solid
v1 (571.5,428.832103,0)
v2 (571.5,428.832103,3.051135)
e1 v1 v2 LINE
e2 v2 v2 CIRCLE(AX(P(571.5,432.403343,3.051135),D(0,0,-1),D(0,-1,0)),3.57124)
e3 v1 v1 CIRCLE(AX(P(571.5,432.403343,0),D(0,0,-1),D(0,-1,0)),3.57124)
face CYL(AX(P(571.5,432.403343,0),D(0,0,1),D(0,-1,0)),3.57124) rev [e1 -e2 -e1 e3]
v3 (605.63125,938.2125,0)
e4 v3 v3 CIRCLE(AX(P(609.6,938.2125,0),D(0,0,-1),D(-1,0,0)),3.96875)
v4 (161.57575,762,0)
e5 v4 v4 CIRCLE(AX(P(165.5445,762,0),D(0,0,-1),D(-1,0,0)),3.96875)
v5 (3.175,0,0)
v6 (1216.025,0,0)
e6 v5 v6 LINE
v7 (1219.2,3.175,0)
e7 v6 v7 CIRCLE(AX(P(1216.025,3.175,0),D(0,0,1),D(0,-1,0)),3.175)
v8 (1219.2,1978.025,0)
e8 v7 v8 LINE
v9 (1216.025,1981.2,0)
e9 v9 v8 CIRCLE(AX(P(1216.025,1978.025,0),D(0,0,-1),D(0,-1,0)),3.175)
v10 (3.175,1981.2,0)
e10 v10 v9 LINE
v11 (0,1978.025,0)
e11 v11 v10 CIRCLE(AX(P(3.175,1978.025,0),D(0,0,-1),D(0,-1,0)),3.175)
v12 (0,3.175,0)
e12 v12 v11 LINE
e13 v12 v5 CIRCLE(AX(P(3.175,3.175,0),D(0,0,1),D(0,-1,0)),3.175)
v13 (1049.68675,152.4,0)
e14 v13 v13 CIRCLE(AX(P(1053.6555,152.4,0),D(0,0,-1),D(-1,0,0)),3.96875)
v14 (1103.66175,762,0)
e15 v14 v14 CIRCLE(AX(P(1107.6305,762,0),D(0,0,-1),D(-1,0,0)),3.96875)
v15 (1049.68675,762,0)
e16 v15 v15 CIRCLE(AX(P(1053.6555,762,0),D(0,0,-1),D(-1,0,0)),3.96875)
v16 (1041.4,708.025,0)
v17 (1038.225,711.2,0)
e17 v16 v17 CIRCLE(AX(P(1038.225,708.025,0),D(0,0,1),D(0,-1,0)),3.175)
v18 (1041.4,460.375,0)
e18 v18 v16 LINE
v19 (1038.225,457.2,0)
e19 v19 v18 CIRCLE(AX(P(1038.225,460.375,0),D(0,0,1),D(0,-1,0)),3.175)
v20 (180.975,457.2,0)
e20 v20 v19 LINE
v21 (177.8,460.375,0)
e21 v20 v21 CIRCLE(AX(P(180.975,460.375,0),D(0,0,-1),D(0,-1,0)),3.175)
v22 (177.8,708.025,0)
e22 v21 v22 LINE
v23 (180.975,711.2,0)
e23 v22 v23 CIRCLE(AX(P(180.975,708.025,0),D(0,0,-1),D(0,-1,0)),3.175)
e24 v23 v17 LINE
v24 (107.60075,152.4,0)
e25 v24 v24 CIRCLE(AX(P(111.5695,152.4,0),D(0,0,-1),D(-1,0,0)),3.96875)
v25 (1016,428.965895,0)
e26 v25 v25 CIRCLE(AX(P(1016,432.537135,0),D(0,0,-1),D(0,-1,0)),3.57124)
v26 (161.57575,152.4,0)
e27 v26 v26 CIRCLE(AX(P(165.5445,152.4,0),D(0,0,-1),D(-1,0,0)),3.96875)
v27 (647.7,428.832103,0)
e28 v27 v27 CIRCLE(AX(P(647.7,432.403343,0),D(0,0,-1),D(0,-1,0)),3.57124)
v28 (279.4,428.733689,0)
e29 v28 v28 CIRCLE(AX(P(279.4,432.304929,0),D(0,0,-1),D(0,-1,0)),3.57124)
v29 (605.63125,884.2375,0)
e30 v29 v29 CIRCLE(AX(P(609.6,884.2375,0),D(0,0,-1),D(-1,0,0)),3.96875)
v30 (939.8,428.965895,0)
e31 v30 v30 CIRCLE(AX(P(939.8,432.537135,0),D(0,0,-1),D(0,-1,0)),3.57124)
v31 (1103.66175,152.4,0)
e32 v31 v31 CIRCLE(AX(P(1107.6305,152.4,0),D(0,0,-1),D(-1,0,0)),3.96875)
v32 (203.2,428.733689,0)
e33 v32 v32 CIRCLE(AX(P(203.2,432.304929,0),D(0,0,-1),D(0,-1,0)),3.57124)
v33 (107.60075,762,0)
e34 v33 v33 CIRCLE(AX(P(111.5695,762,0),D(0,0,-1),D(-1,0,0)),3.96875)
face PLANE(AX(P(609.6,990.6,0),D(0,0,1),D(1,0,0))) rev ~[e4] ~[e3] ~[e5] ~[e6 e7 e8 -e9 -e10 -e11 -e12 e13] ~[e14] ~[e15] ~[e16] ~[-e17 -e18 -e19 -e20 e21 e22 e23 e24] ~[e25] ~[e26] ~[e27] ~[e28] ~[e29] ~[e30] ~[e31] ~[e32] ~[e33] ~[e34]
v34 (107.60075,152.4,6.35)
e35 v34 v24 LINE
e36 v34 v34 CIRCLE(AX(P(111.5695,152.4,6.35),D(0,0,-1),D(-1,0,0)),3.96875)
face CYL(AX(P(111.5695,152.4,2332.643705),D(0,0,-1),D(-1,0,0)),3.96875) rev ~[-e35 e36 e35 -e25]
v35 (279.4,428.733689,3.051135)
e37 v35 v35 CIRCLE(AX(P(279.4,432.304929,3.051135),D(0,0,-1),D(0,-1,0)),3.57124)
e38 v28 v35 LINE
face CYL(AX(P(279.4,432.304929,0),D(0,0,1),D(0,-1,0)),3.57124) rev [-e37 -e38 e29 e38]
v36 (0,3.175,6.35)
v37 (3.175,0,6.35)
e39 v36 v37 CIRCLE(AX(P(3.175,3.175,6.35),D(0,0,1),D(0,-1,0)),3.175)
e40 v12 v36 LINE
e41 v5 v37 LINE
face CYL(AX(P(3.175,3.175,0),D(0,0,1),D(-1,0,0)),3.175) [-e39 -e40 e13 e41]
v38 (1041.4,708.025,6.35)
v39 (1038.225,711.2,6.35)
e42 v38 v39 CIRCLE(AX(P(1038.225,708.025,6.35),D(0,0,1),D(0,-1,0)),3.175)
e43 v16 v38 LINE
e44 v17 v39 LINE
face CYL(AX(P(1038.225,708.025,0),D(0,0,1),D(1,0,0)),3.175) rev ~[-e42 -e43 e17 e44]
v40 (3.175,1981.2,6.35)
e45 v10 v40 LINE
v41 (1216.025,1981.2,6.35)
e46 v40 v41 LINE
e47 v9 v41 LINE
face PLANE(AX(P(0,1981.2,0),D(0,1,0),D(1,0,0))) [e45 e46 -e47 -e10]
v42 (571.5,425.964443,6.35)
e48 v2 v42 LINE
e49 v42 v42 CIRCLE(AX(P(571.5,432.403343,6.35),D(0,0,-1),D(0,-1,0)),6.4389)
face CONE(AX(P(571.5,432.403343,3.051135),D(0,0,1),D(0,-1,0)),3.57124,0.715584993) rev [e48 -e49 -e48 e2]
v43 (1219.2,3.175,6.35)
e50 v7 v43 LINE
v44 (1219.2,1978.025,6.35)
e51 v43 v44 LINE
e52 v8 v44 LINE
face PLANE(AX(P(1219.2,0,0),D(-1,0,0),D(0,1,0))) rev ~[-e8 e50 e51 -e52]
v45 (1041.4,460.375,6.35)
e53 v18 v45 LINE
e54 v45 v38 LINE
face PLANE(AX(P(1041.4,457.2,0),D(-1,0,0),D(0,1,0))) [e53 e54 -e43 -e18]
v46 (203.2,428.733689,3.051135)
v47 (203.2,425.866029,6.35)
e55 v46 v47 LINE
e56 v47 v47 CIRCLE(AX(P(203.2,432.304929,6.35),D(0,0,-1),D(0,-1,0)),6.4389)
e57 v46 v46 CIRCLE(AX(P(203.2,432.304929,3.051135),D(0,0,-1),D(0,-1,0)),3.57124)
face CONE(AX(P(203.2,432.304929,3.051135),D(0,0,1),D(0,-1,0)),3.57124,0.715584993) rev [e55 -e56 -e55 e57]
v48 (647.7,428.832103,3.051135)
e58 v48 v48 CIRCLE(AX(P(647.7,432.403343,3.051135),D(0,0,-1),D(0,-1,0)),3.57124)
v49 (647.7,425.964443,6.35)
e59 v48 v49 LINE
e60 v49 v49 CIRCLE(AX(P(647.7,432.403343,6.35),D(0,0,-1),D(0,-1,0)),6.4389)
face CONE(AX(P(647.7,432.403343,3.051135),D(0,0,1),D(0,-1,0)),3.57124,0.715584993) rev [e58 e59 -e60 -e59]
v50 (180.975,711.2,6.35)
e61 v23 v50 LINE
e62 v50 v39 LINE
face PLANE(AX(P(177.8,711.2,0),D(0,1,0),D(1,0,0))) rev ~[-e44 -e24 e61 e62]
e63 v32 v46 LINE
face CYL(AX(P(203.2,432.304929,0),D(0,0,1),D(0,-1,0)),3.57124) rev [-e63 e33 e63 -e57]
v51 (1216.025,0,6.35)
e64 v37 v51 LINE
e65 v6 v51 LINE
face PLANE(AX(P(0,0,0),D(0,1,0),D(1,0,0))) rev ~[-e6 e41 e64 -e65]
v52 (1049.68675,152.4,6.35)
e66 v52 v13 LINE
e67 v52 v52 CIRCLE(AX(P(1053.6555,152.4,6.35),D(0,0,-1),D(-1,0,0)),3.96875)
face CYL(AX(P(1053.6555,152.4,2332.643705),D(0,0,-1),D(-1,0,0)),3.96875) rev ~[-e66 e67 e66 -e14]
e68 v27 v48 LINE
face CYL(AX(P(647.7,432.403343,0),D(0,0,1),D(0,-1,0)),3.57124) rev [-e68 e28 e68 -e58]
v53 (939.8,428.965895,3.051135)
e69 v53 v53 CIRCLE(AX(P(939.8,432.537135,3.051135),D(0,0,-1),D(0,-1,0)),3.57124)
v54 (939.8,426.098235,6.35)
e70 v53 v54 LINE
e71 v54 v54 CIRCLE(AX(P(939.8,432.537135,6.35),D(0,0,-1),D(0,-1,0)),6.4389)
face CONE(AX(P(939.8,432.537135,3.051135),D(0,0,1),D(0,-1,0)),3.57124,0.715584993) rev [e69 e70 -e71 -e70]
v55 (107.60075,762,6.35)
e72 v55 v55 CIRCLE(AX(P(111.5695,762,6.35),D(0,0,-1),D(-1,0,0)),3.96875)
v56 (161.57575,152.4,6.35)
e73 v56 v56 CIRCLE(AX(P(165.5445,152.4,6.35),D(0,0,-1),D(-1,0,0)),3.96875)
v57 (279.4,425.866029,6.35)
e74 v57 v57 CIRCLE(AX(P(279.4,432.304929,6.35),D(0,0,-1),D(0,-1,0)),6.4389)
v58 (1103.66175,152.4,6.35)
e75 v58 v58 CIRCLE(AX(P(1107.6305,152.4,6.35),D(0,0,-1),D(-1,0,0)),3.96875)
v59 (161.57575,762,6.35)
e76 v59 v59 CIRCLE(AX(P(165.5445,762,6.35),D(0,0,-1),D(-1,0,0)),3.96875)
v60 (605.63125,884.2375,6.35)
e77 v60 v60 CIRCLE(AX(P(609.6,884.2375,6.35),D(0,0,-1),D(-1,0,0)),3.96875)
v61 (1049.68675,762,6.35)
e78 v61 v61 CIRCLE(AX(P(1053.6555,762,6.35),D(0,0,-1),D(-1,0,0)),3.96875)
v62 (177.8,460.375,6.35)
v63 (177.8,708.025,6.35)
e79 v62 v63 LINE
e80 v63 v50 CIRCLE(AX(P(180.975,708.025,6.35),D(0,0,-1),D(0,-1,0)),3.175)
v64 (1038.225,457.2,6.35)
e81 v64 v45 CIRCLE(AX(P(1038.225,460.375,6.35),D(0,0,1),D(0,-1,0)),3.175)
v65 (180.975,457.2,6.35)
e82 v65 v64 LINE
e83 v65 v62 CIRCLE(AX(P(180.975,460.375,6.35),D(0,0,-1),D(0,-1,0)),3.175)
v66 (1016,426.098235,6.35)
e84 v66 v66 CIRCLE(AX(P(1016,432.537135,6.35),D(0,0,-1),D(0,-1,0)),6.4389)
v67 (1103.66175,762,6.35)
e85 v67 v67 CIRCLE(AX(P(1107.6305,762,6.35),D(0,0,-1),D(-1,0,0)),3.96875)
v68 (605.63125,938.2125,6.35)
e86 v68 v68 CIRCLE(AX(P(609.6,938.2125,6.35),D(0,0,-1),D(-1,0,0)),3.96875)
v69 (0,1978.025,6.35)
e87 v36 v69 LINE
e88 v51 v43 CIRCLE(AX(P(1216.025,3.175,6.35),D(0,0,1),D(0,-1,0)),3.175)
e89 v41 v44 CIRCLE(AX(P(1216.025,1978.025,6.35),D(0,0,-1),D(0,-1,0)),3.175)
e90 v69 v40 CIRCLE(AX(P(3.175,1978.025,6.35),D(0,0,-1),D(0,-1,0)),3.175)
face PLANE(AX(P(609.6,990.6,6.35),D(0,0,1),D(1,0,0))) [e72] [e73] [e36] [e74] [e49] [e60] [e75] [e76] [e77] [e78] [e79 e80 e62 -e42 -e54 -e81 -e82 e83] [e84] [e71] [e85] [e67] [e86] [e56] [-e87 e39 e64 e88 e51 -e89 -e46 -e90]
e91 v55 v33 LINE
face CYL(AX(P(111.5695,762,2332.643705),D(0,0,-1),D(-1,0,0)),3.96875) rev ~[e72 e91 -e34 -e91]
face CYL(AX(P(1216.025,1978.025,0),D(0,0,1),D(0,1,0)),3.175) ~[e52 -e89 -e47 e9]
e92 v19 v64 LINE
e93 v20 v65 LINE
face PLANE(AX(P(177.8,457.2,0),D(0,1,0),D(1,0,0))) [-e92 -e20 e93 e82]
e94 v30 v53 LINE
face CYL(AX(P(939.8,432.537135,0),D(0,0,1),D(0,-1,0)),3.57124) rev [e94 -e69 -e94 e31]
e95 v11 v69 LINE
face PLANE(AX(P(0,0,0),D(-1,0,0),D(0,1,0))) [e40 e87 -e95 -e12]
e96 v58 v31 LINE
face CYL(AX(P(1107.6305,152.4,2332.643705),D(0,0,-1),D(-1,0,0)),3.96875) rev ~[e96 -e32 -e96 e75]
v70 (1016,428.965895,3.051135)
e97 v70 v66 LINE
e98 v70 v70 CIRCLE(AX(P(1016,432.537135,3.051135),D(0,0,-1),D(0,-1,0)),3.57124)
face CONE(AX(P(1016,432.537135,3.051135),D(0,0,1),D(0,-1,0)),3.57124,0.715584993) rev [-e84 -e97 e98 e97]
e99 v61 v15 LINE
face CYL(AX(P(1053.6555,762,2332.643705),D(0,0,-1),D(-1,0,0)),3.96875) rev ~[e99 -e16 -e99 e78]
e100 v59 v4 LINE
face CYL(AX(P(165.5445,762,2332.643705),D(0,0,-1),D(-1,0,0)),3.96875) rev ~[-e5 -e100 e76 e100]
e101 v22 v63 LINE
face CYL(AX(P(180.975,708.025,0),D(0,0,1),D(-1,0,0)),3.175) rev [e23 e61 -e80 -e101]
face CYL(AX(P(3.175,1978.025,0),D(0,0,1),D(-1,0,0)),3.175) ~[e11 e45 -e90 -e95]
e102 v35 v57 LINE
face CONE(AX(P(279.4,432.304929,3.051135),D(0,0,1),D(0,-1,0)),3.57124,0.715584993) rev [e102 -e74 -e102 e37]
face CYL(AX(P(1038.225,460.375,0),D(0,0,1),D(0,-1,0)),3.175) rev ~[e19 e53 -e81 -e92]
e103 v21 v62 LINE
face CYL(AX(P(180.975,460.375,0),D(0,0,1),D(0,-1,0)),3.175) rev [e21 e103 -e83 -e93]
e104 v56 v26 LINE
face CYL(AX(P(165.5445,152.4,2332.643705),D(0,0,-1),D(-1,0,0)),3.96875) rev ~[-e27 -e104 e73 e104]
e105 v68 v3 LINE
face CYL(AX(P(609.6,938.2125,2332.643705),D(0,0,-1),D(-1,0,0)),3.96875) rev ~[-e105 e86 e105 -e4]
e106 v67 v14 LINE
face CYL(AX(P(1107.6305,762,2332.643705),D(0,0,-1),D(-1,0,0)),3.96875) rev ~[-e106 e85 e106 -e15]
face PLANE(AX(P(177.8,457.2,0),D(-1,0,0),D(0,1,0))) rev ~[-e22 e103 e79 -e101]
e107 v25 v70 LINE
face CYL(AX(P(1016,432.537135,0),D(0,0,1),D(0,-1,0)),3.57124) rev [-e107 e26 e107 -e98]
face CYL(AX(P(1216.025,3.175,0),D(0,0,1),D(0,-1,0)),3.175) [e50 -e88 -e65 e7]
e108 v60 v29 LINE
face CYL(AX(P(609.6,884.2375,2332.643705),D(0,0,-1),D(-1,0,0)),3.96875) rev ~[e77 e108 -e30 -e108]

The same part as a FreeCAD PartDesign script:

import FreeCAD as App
import Part
import Sketcher
Q = App.Units.Quantity


def edges_at(feature, points):
    """Names of the edges that pass closest to the given points."""
    edges = feature.Shape.Edges
    near = lambda p: min(range(len(edges)), key=lambda i: edges[i].distToShape(Part.Vertex(*p))[0])
    return sorted({f"Edge{near(p) + 1}" for p in points})


def add_polygon(sketch, points):
    """Adds a closed chain of lines whose ends are joined by coincident constraints."""
    first, n = sketch.GeometryCount, len(points)
    for a, b in zip(points, points[1:] + points[:1]):
        sketch.addGeometry(Part.LineSegment(App.Vector(*a, 0), App.Vector(*b, 0)), False)
    for i in range(n):
        sketch.addConstraint(Sketcher.Constraint("Coincident", first + i, 2, first + (i + 1) % n, 1))

doc = App.newDocument("Part")
params = doc.addObject("Spreadsheet::Sheet", "Params")
for row, (alias, value) in enumerate([
    ("sketch1_width", "48 in"),
    ("sketch1_width2", "34 in"),
    ("sketch1_height", "78 in"),
    ("sketch1_height2", "10 in"),
    ("pad1_length", "0.25 in"),
    ("sketch2_height", "0.25 in"),
    ("groove_angle", "360 deg"),
    ("linearpattern_pitch", "3 in"),
    ("linearpattern2_pitch", "736.600036 mm"),
    ("linearpattern3_pitch", "812.800033 mm"),
    ("linearpattern4_pitch", "368.300013 mm"),
    ("linearpattern5_pitch", "444.500011 mm"),
    ("fillet_radius", "0.125 in"),
    ("sketch3_diameter", "0.3125 in"),
    ("hole_diameter", "0.3125 in"),
], start=1):
    params.set(f"A{row}", alias)
    params.set(f"B{row}", "=" + value)
    params.setAlias(f"B{row}", alias)

body = doc.addObject("PartDesign::Body", "Body")

# Sketch on XY plane
sketch1 = body.newObject("Sketcher::SketchObject", "Sketch")
sketch1.AttachmentSupport = (doc.getObject("XY_Plane"), [""])
sketch1.MapMode = "FlatFace"
add_polygon(sketch1, [(0, 1981.2), (0, 0), (1219.2, 0), (1219.2, 1981.2)])  # lines 0-3
add_polygon(sketch1, [(1041.4, 457.2), (177.8, 457.2), (177.8, 711.2), (1041.4, 711.2)])  # lines 4-7
sketch1.addConstraint([
    Sketcher.Constraint("Vertical", 0),
    Sketcher.Constraint("Horizontal", 1),
    Sketcher.Constraint("Vertical", 2),
    Sketcher.Constraint("Horizontal", 3),
    Sketcher.Constraint("Horizontal", 4),
    Sketcher.Constraint("Vertical", 5),
    Sketcher.Constraint("Horizontal", 6),
    Sketcher.Constraint("Vertical", 7),
    Sketcher.Constraint("Coincident", 0, 2, -1, 1),
    Sketcher.Constraint("DistanceX", 1, 1, 1, 2, Q("48 in")),
    Sketcher.Constraint("DistanceX", 4, 2, 4, 1, Q("34 in")),
    Sketcher.Constraint("DistanceY", 0, 2, 0, 1, Q("78 in")),
    Sketcher.Constraint("DistanceY", 5, 1, 5, 2, Q("10 in")),
    Sketcher.Constraint("DistanceX", -1, 1, 4, 2, Q("7 in")),
    Sketcher.Constraint("DistanceY", -1, 1, 4, 2, Q("18 in")),
])
sketch1.setExpression("Constraints[17]", "Params.sketch1_width")
sketch1.setExpression("Constraints[18]", "Params.sketch1_width2")
sketch1.setExpression("Constraints[19]", "Params.sketch1_height")
sketch1.setExpression("Constraints[20]", "Params.sketch1_height2")
pad1 = body.newObject("PartDesign::Pad", "Pad")
pad1.Profile = sketch1
pad1.setExpression("Length", "Params.pad1_length")

# Sketch on YZ plane
sketch2 = body.newObject("Sketcher::SketchObject", "Sketch001")
sketch2.AttachmentSupport = (doc.getObject("YZ_Plane"), [""])
sketch2.MapMode = "FlatFace"
sketch2.AttachmentOffset = App.Placement(App.Vector(0, 0, 8 * 25.4), App.Rotation())
add_polygon(sketch2, [(432.304929, 0), (432.304929, 6.35), (425.866029, 6.35), (428.733689, 3.051135), (428.733689, 0)])  # lines 0-4
sketch2.addGeometry(Part.LineSegment(App.Vector(432.304929, 6.35, 0), App.Vector(432.304929, 0, 0)), True)  # axis
sketch2.addConstraint([
    Sketcher.Constraint("Vertical", 0),
    Sketcher.Constraint("Horizontal", 1),
    Sketcher.Constraint("Vertical", 3),
    Sketcher.Constraint("Horizontal", 4),
    Sketcher.Constraint("Vertical", 5),
    Sketcher.Constraint("Coincident", 5, 1, 0, 2),
    Sketcher.Constraint("PointOnObject", 3, 2, -1),
    Sketcher.Constraint("PointOnObject", 5, 2, -1),
    Sketcher.Constraint("Angle", 2, Q("-49 deg")),
    Sketcher.Constraint("DistanceY", 0, 1, 0, 2, Q("0.25 in")),
    Sketcher.Constraint("DistanceX", 1, 2, 1, 1, Q("0.2535 in")),
    Sketcher.Constraint("DistanceX", 4, 1, 4, 2, Q("0.1406 in")),
    Sketcher.Constraint("DistanceX", -1, 1, 0, 2, 432.304929),
])
sketch2.setExpression("Constraints[14]", "Params.sketch2_height")
groove = body.newObject("PartDesign::Groove", "Groove")
groove.Profile = sketch2
groove.ReferenceAxis = (sketch2, ["Axis0"])
groove.setExpression("Angle", "Params.groove_angle")
doc.recompute()

linearpattern = body.newObject("PartDesign::LinearPattern", "LinearPattern")
linearpattern.Originals = [groove]
linearpattern.Direction = (doc.getObject("X_Axis"), [""])
linearpattern.Mode = "offset"
linearpattern.setExpression("Offset", "Params.linearpattern_pitch")
linearpattern.Occurrences = 2
body.Tip = linearpattern
doc.recompute()

datumline = body.newObject("PartDesign::Line", "DatumLine")
datumline.Placement = App.Placement(App.Vector(0, 0, 0), App.Rotation(App.Vector(0, 0, 1), App.Vector(0.99999995, 0.000315241, 0)))
linearpattern2 = body.newObject("PartDesign::LinearPattern", "LinearPattern001")
linearpattern2.Originals = [groove]
linearpattern2.Direction = (datumline, [""])
linearpattern2.Mode = "offset"
linearpattern2.setExpression("Offset", "Params.linearpattern2_pitch")
linearpattern2.Occurrences = 2
body.Tip = linearpattern2
doc.recompute()

datumline2 = body.newObject("PartDesign::Line", "DatumLine001")
datumline2.Placement = App.Placement(App.Vector(0, 0, 0), App.Rotation(App.Vector(0, 0, 1), App.Vector(0.999999959, 0.000285687, 0)))
linearpattern3 = body.newObject("PartDesign::LinearPattern", "LinearPattern002")
linearpattern3.Originals = [groove]
linearpattern3.Direction = (datumline2, [""])
linearpattern3.Mode = "offset"
linearpattern3.setExpression("Offset", "Params.linearpattern3_pitch")
linearpattern3.Occurrences = 2
body.Tip = linearpattern3
doc.recompute()

datumline3 = body.newObject("PartDesign::Line", "DatumLine002")
datumline3.Placement = App.Placement(App.Vector(0, 0, 0), App.Rotation(App.Vector(0, 0, 1), App.Vector(0.999999964, 0.000267211, 0)))
linearpattern4 = body.newObject("PartDesign::LinearPattern", "LinearPattern003")
linearpattern4.Originals = [groove]
linearpattern4.Direction = (datumline3, [""])
linearpattern4.Mode = "offset"
linearpattern4.setExpression("Offset", "Params.linearpattern4_pitch")
linearpattern4.Occurrences = 2
body.Tip = linearpattern4
doc.recompute()

datumline4 = body.newObject("PartDesign::Line", "DatumLine003")
datumline4.Placement = App.Placement(App.Vector(0, 0, 0), App.Rotation(App.Vector(0, 0, 1), App.Vector(0.999999975, 0.000221404, 0)))
linearpattern5 = body.newObject("PartDesign::LinearPattern", "LinearPattern004")
linearpattern5.Originals = [groove]
linearpattern5.Direction = (datumline4, [""])
linearpattern5.Mode = "offset"
linearpattern5.setExpression("Offset", "Params.linearpattern5_pitch")
linearpattern5.Occurrences = 2
body.Tip = linearpattern5
doc.recompute()

fillet = body.newObject("PartDesign::Fillet", "Fillet")
fillet.Base = (linearpattern5, edges_at(linearpattern5, [
    (177.8, 711.2, 3.175),
    (177.8, 457.2, 3.175),
    (1041.4, 457.2, 3.175),
    (1041.4, 711.2, 3.175),
    (0, 1981.2, 3.175),
    (1219.2, 1981.2, 3.175),
    (1219.2, 0, 3.175),
    (0, 0, 3.175),
]))
fillet.setExpression("Radius", "Params.fillet_radius")

# Sketch on XY plane
sketch3 = body.newObject("Sketcher::SketchObject", "Sketch002")
sketch3.AttachmentSupport = (doc.getObject("XY_Plane"), [""])
sketch3.MapMode = "FlatFace"
sketch3.AttachmentOffset = App.Placement(App.Vector(0, 0, 0.25 * 25.4), App.Rotation())
sketch3.addGeometry([
    Part.Circle(App.Vector(609.6, 938.2125, 0), App.Vector(0, 0, 1), 3.96875),  # 0
    Part.Circle(App.Vector(111.5695, 762, 0), App.Vector(0, 0, 1), 3.96875),  # 1
    Part.Circle(App.Vector(111.5695, 152.4, 0), App.Vector(0, 0, 1), 3.96875),  # 2
    Part.Circle(App.Vector(165.5445, 152.4, 0), App.Vector(0, 0, 1), 3.96875),  # 3
    Part.Circle(App.Vector(165.5445, 762, 0), App.Vector(0, 0, 1), 3.96875),  # 4
    Part.Circle(App.Vector(1053.6555, 152.4, 0), App.Vector(0, 0, 1), 3.96875),  # 5
    Part.Circle(App.Vector(1107.6305, 152.4, 0), App.Vector(0, 0, 1), 3.96875),  # 6
    Part.Circle(App.Vector(1107.6305, 762, 0), App.Vector(0, 0, 1), 3.96875),  # 7
    Part.Circle(App.Vector(1053.6555, 762, 0), App.Vector(0, 0, 1), 3.96875),  # 8
    Part.Circle(App.Vector(609.6, 884.2375, 0), App.Vector(0, 0, 1), 3.96875),  # 9
], False)
sketch3.addConstraint([
    Sketcher.Constraint("Equal", 0, 1),
    Sketcher.Constraint("Equal", 1, 2),
    Sketcher.Constraint("Equal", 2, 3),
    Sketcher.Constraint("Equal", 3, 4),
    Sketcher.Constraint("Equal", 4, 5),
    Sketcher.Constraint("Equal", 5, 6),
    Sketcher.Constraint("Equal", 6, 7),
    Sketcher.Constraint("Equal", 7, 8),
    Sketcher.Constraint("Equal", 8, 9),
    Sketcher.Constraint("Horizontal", 2, 3, 3, 3),
    Sketcher.Constraint("Horizontal", 1, 3, 4, 3),
    Sketcher.Constraint("Horizontal", 3, 3, 5, 3),
    Sketcher.Constraint("Horizontal", 5, 3, 6, 3),
    Sketcher.Constraint("Horizontal", 4, 3, 7, 3),
    Sketcher.Constraint("Horizontal", 7, 3, 8, 3),
    Sketcher.Constraint("Vertical", 1, 3, 2, 3),
    Sketcher.Constraint("Vertical", 3, 3, 4, 3),
    Sketcher.Constraint("Vertical", 6, 3, 7, 3),
    Sketcher.Constraint("Vertical", 5, 3, 8, 3),
    Sketcher.Constraint("Vertical", 0, 3, 9, 3),
    Sketcher.Constraint("Diameter", 0, Q("0.3125 in")),
    Sketcher.Constraint("DistanceX", -1, 1, 0, 3, Q("24 in")),
    Sketcher.Constraint("DistanceY", -1, 1, 1, 3, Q("30 in")),
    Sketcher.Constraint("DistanceY", -1, 1, 2, 3, Q("6 in")),
    Sketcher.Constraint("DistanceX", 2, 3, 5, 3, Q("37.09 in")),
    Sketcher.Constraint("DistanceX", 3, 3, 6, 3, Q("37.09 in")),
    Sketcher.Constraint("DistanceY", -1, 1, 0, 3, Q("36.9375 in")),
    Sketcher.Constraint("DistanceY", -1, 1, 9, 3, Q("34.8125 in")),
    Sketcher.Constraint("DistanceX", 2, 3, 3, 3, Q("2.125 in")),
    Sketcher.Constraint("DistanceX", -1, 1, 1, 3, Q("4.3925 in")),
])
sketch3.setExpression("Constraints[20]", "Params.sketch3_diameter")
doc.recompute()
hole = body.newObject("PartDesign::Hole", "Hole")
hole.Profile = sketch3
hole.ThreadType = "None"
hole.setExpression("Diameter", "Params.hole_diameter")
hole.DepthType = "ThroughAll"

doc.recompute()
